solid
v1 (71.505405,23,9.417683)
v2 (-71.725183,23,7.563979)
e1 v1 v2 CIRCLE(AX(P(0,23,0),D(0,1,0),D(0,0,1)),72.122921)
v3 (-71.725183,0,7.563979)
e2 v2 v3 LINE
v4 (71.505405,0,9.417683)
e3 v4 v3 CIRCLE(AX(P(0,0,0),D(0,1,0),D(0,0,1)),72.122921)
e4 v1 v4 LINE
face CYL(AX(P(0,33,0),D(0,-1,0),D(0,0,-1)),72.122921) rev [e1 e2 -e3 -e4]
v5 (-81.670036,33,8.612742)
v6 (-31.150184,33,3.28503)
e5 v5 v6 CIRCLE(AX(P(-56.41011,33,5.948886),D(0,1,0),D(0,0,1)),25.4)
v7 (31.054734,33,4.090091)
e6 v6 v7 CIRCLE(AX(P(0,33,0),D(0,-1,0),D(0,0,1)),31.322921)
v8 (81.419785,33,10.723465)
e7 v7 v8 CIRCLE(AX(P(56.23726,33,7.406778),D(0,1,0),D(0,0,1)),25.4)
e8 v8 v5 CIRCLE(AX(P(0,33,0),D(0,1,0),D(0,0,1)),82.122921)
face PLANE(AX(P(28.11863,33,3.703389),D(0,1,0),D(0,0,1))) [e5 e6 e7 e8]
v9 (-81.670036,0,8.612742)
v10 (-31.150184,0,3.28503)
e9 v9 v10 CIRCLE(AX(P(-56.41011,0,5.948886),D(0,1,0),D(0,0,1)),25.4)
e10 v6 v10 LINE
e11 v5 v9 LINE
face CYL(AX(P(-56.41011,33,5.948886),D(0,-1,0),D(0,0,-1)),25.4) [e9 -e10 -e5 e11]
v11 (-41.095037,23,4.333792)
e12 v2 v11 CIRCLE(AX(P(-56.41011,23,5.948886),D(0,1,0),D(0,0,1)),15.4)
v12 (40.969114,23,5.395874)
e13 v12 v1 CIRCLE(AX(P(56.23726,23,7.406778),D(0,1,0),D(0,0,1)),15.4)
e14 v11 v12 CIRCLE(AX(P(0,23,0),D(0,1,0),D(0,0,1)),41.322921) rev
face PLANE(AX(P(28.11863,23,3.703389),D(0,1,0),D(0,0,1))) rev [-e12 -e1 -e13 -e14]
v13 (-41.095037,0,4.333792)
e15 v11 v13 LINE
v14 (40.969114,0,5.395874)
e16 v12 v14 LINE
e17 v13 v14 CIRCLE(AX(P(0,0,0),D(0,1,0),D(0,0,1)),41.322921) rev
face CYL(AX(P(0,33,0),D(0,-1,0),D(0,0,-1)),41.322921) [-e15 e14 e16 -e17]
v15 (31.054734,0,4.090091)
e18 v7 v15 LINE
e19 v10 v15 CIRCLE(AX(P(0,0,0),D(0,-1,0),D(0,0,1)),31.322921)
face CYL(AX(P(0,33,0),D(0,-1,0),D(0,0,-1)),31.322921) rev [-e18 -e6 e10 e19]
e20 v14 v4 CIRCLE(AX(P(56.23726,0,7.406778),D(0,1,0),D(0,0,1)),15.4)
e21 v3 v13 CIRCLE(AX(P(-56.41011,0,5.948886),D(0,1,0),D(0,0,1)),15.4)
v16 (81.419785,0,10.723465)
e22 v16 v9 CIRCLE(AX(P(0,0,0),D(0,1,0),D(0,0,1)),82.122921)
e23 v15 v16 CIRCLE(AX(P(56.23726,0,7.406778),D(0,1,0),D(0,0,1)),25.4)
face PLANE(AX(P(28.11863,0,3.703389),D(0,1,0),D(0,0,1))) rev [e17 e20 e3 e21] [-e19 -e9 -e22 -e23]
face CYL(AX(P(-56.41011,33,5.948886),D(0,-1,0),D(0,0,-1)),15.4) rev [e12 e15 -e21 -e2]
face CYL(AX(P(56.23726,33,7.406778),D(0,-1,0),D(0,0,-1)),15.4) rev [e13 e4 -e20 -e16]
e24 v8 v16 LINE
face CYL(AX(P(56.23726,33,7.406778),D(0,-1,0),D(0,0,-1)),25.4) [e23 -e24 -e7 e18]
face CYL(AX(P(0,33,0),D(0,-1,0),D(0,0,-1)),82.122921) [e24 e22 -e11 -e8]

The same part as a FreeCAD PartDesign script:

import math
import FreeCAD as App
import Part
import Sketcher
from FreeCAD import Vector


def faces_at(feature, points):
    """Names of the faces that lie closest to the given points."""
    faces = feature.Shape.Faces
    near = lambda p: min(range(len(faces)), key=lambda i: faces[i].distToShape(Part.Vertex(*p))[0])
    return sorted({f"Face{near(p) + 1}" for p in points})

doc = App.newDocument("Part")
body = doc.addObject("PartDesign::Body", "Body")

# Sketch on XZ plane
sketch1 = body.newObject("Sketcher::SketchObject", "Sketch")
sketch1.AttachmentSupport = (doc.getObject("XZ_Plane"), [""])
sketch1.MapMode = "FlatFace"
sketch1.addGeometry([
    Part.ArcOfCircle(Part.Circle(Vector(0, 0, 0), Vector(0, 0, 1), 82), math.radians(174), math.radians(368)),
    Part.ArcOfCircle(Part.Circle(Vector(-56, 6, 0), Vector(0, 0, 1), 25), math.radians(-6), math.radians(174)),
    Part.ArcOfCircle(Part.Circle(Vector(0, 0, 0), Vector(0, 0, 1), 31), math.radians(174), math.radians(368)),
    Part.ArcOfCircle(Part.Circle(Vector(56, 7, 0), Vector(0, 0, 1), 25), math.radians(8), math.radians(188)),
], False)
sketch1.addConstraint([
    Sketcher.Constraint("Tangent", 0, 1, 1, 2),
    Sketcher.Constraint("Tangent", 1, 1, 2, 1),
    Sketcher.Constraint("Tangent", 2, 2, 3, 2),
    Sketcher.Constraint("Tangent", 3, 1, 0, 2),
    Sketcher.Constraint("Coincident", 0, 3, -1, 1),
    Sketcher.Constraint("Coincident", 2, 3, -1, 1),
    Sketcher.Constraint("Radius", 1, 25.4),
    Sketcher.Constraint("Radius", 0, 82.122921),
    Sketcher.Constraint("DistanceX", 1, 3, -1, 1, 56.41011),
    Sketcher.Constraint("DistanceX", -1, 1, 3, 3, 56.23726),
])
pad1 = body.newObject("PartDesign::Pad", "Pad")
pad1.Profile = sketch1
pad1.Length = 33
pad1.Reversed = True
doc.recompute()

thickness = body.newObject("PartDesign::Thickness", "Thickness")
thickness.Base = (pad1, faces_at(pad1, [(-32.849, 0, -1.672)]))
thickness.Value = 10
thickness.Reversed = True
thickness.Join = "Intersection"

doc.recompute()
